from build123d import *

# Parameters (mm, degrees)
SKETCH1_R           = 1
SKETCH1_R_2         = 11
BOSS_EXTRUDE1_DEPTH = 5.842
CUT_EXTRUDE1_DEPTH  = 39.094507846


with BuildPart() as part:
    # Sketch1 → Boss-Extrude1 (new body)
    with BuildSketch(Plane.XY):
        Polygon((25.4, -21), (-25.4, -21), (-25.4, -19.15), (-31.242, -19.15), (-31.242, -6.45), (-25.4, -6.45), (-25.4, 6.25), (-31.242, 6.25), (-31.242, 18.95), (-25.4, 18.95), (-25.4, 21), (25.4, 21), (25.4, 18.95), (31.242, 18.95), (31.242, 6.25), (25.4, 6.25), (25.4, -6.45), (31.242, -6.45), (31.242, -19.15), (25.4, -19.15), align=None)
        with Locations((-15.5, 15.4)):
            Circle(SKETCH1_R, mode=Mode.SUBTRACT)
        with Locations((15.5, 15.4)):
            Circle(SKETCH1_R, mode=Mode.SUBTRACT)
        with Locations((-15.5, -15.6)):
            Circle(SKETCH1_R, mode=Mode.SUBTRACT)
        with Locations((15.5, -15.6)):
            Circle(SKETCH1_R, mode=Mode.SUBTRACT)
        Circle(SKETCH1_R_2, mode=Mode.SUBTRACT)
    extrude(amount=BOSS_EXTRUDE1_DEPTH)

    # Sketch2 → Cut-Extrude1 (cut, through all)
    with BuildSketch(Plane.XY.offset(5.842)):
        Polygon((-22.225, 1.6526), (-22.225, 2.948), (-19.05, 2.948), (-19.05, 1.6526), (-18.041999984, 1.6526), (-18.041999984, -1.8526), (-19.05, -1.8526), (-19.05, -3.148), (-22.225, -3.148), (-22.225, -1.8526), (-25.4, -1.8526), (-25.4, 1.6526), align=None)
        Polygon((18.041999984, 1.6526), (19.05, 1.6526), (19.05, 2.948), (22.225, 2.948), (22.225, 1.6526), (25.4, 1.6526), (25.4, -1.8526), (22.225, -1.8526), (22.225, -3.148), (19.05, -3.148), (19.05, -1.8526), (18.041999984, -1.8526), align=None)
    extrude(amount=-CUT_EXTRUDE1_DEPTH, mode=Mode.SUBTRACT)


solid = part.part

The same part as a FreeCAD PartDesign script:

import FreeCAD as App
import Part
import Sketcher
Q = App.Units.Quantity

doc = App.newDocument("Part")
body = doc.addObject("PartDesign::Body", "Body")

# Sketch on XY plane
sketch1 = body.newObject("Sketcher::SketchObject", "Sketch")
sketch1.AttachmentSupport = (doc.getObject("XY_Plane"), [""])
sketch1.MapMode = "FlatFace"
sketch1.addGeometry([
    Part.LineSegment(App.Vector(-25.4, -21, 0), App.Vector(25.4, -21, 0)),  # 0
    Part.LineSegment(App.Vector(25.4, -21, 0), App.Vector(25.4, -19.1, 0)),  # 1
    Part.LineSegment(App.Vector(25.4, -19.1, 0), App.Vector(31.2, -19.1, 0)),  # 2
    Part.LineSegment(App.Vector(31.2, -19.1, 0), App.Vector(31.2, -6.5, 0)),  # 3
    Part.LineSegment(App.Vector(31.2, -6.5, 0), App.Vector(25.4, -6.5, 0)),  # 4
    Part.LineSegment(App.Vector(25.4, -6.5, 0), App.Vector(25.4, 6.2, 0)),  # 5
    Part.LineSegment(App.Vector(25.4, 6.2, 0), App.Vector(31.2, 6.2, 0)),  # 6
    Part.LineSegment(App.Vector(31.2, 6.2, 0), App.Vector(31.2, 18.9, 0)),  # 7
    Part.LineSegment(App.Vector(31.2, 18.9, 0), App.Vector(25.4, 18.9, 0)),  # 8
    Part.LineSegment(App.Vector(25.4, 18.9, 0), App.Vector(25.4, 21, 0)),  # 9
    Part.LineSegment(App.Vector(25.4, 21, 0), App.Vector(-25.4, 21, 0)),  # 10
    Part.LineSegment(App.Vector(-25.4, 21, 0), App.Vector(-25.4, 18.9, 0)),  # 11
    Part.LineSegment(App.Vector(-25.4, 18.9, 0), App.Vector(-31.2, 18.9, 0)),  # 12
    Part.LineSegment(App.Vector(-31.2, 18.9, 0), App.Vector(-31.2, 6.2, 0)),  # 13
    Part.LineSegment(App.Vector(-31.2, 6.2, 0), App.Vector(-25.4, 6.2, 0)),  # 14
    Part.LineSegment(App.Vector(-25.4, 6.2, 0), App.Vector(-25.4, -6.5, 0)),  # 15
    Part.LineSegment(App.Vector(-25.4, -6.5, 0), App.Vector(-31.2, -6.5, 0)),  # 16
    Part.LineSegment(App.Vector(-31.2, -6.5, 0), App.Vector(-31.2, -19.1, 0)),  # 17
    Part.LineSegment(App.Vector(-31.2, -19.1, 0), App.Vector(-25.4, -19.1, 0)),  # 18
    Part.LineSegment(App.Vector(-25.4, -19.1, 0), App.Vector(-25.4, -21, 0)),  # 19
    Part.Circle(App.Vector(15.5, -15.6, 0), App.Vector(0, 0, 1), 1),  # 20
    Part.Circle(App.Vector(-15.5, -15.6, 0), App.Vector(0, 0, 1), 1),  # 21
    Part.Circle(App.Vector(15.5, 15.4, 0), App.Vector(0, 0, 1), 1),  # 22
    Part.Circle(App.Vector(0, 0, 0), App.Vector(0, 0, 1), 11),  # 23
    Part.Circle(App.Vector(-15.5, 15.4, 0), App.Vector(0, 0, 1), 1),  # 24
], False)
sketch1.addConstraint([
    Sketcher.Constraint("Coincident", 0, 2, 1, 1),
    Sketcher.Constraint("Coincident", 1, 2, 2, 1),
    Sketcher.Constraint("Coincident", 2, 2, 3, 1),
    Sketcher.Constraint("Coincident", 3, 2, 4, 1),
    Sketcher.Constraint("Coincident", 4, 2, 5, 1),
    Sketcher.Constraint("Coincident", 5, 2, 6, 1),
    Sketcher.Constraint("Coincident", 6, 2, 7, 1),
    Sketcher.Constraint("Coincident", 7, 2, 8, 1),
    Sketcher.Constraint("Coincident", 8, 2, 9, 1),
    Sketcher.Constraint("Coincident", 9, 2, 10, 1),
    Sketcher.Constraint("Coincident", 10, 2, 11, 1),
    Sketcher.Constraint("Coincident", 11, 2, 12, 1),
    Sketcher.Constraint("Coincident", 12, 2, 13, 1),
    Sketcher.Constraint("Coincident", 13, 2, 14, 1),
    Sketcher.Constraint("Coincident", 14, 2, 15, 1),
    Sketcher.Constraint("Coincident", 15, 2, 16, 1),
    Sketcher.Constraint("Coincident", 16, 2, 17, 1),
    Sketcher.Constraint("Coincident", 17, 2, 18, 1),
    Sketcher.Constraint("Coincident", 18, 2, 19, 1),
    Sketcher.Constraint("Coincident", 19, 2, 0, 1),
    Sketcher.Constraint("Horizontal", 0),
    Sketcher.Constraint("Vertical", 1),
    Sketcher.Constraint("Horizontal", 2),
    Sketcher.Constraint("Vertical", 3),
    Sketcher.Constraint("Horizontal", 4),
    Sketcher.Constraint("Vertical", 5),
    Sketcher.Constraint("Horizontal", 6),
    Sketcher.Constraint("Vertical", 7),
    Sketcher.Constraint("Horizontal", 8),
    Sketcher.Constraint("Vertical", 9),
    Sketcher.Constraint("Horizontal", 10),
    Sketcher.Constraint("Vertical", 11),
    Sketcher.Constraint("Horizontal", 12),
    Sketcher.Constraint("Vertical", 13),
    Sketcher.Constraint("Horizontal", 14),
    Sketcher.Constraint("Vertical", 15),
    Sketcher.Constraint("Horizontal", 16),
    Sketcher.Constraint("Vertical", 17),
    Sketcher.Constraint("Horizontal", 18),
    Sketcher.Constraint("Vertical", 19),
    Sketcher.Constraint("Coincident", 23, 3, -1, 1),
    Sketcher.Constraint("Equal", 20, 21),
    Sketcher.Constraint("Equal", 21, 22),
    Sketcher.Constraint("Equal", 22, 24),
    Sketcher.Constraint("Symmetric", 0, 2, 10, 2, -1, 1),
    Sketcher.Constraint("Symmetric", 20, 3, 21, 3, -2),
    Sketcher.Constraint("Symmetric", 22, 3, 24, 3, -2),
    Sketcher.Constraint("Symmetric", 8, 2, 11, 2, -2),
    Sketcher.Constraint("Symmetric", 6, 2, 13, 2, -2),
    Sketcher.Constraint("Symmetric", 4, 2, 15, 2, -2),
    Sketcher.Constraint("Symmetric", 2, 2, 17, 2, -2),
    Sketcher.Constraint("Vertical", 20, 3, 22, 3),
    Sketcher.Constraint("Vertical", 1, 2, 4, 2),
    Sketcher.Constraint("Vertical", 3, 2, 6, 2),
    Sketcher.Constraint("Vertical", 15, 2, 18, 2),
    Sketcher.Constraint("Equal", 3, 5),
    Sketcher.Constraint("Equal", 5, 7),
    Sketcher.Constraint("DistanceX", 0, 1, 0, 2, Q("2 in")),
    Sketcher.Constraint("DistanceY", 3, 1, 3, 2, Q("0.5 in")),
    Sketcher.Constraint("DistanceX", 2, 1, 2, 2, Q("0.23 in")),
    Sketcher.Constraint("Diameter", 20, Q("2 mm")),
    Sketcher.Constraint("Diameter", 23, Q("22 mm")),
    Sketcher.Constraint("DistanceY", 1, 1, 1, 2, Q("1.85 mm")),
    Sketcher.Constraint("DistanceY", 9, 1, 9, 2, Q("2.05 mm")),
    Sketcher.Constraint("DistanceX", -1, 1, 20, 3, Q("15.5 mm")),
    Sketcher.Constraint("DistanceY", 20, 3, -1, 1, Q("15.6 mm")),
    Sketcher.Constraint("DistanceY", -1, 1, 22, 3, Q("15.4 mm")),
])
pad1 = body.newObject("PartDesign::Pad", "Pad")
pad1.Profile = sketch1
pad1.Length = Q("0.23 in")

# Sketch on XY plane
sketch2 = body.newObject("Sketcher::SketchObject", "Sketch001")
sketch2.AttachmentSupport = (doc.getObject("XY_Plane"), [""])
sketch2.MapMode = "FlatFace"
sketch2.AttachmentOffset = App.Placement(App.Vector(0, 0, 0.23 * 25.4), App.Rotation())
sketch2.addGeometry([
    Part.LineSegment(App.Vector(-22.2, 2.9, 0), App.Vector(-22.2, 1.7, 0)),  # 0
    Part.LineSegment(App.Vector(-22.2, 1.7, 0), App.Vector(-25.4, 1.7, 0)),  # 1
    Part.LineSegment(App.Vector(-25.4, 1.7, 0), App.Vector(-25.4, -1.9, 0)),  # 2
    Part.LineSegment(App.Vector(-25.4, -1.9, 0), App.Vector(-22.2, -1.9, 0)),  # 3
    Part.LineSegment(App.Vector(-22.2, -1.9, 0), App.Vector(-22.2, -3.1, 0)),  # 4
    Part.LineSegment(App.Vector(-22.2, -3.1, 0), App.Vector(-19.1, -3.1, 0)),  # 5
    Part.LineSegment(App.Vector(-19.1, -3.1, 0), App.Vector(-19.1, -1.9, 0)),  # 6
    Part.LineSegment(App.Vector(-19.1, -1.9, 0), App.Vector(-18, -1.9, 0)),  # 7
    Part.LineSegment(App.Vector(-18, -1.9, 0), App.Vector(-18, 1.7, 0)),  # 8
    Part.LineSegment(App.Vector(-18, 1.7, 0), App.Vector(-19.1, 1.7, 0)),  # 9
    Part.LineSegment(App.Vector(-19.1, 1.7, 0), App.Vector(-19.1, 2.9, 0)),  # 10
    Part.LineSegment(App.Vector(-19.1, 2.9, 0), App.Vector(-22.2, 2.9, 0)),  # 11
    Part.LineSegment(App.Vector(19.1, 1.7, 0), App.Vector(18, 1.7, 0)),  # 12
    Part.LineSegment(App.Vector(18, 1.7, 0), App.Vector(18, -1.9, 0)),  # 13
    Part.LineSegment(App.Vector(18, -1.9, 0), App.Vector(19.1, -1.9, 0)),  # 14
    Part.LineSegment(App.Vector(19.1, -1.9, 0), App.Vector(19.1, -3.1, 0)),  # 15
    Part.LineSegment(App.Vector(19.1, -3.1, 0), App.Vector(22.2, -3.1, 0)),  # 16
    Part.LineSegment(App.Vector(22.2, -3.1, 0), App.Vector(22.2, -1.9, 0)),  # 17
    Part.LineSegment(App.Vector(22.2, -1.9, 0), App.Vector(25.4, -1.9, 0)),  # 18
    Part.LineSegment(App.Vector(25.4, -1.9, 0), App.Vector(25.4, 1.7, 0)),  # 19
    Part.LineSegment(App.Vector(25.4, 1.7, 0), App.Vector(22.2, 1.7, 0)),  # 20
    Part.LineSegment(App.Vector(22.2, 1.7, 0), App.Vector(22.2, 2.9, 0)),  # 21
    Part.LineSegment(App.Vector(22.2, 2.9, 0), App.Vector(19.1, 2.9, 0)),  # 22
    Part.LineSegment(App.Vector(19.1, 2.9, 0), App.Vector(19.1, 1.7, 0)),  # 23
], False)
sketch2.addConstraint([
    Sketcher.Constraint("Coincident", 0, 2, 1, 1),
    Sketcher.Constraint("Coincident", 1, 2, 2, 1),
    Sketcher.Constraint("Coincident", 2, 2, 3, 1),
    Sketcher.Constraint("Coincident", 3, 2, 4, 1),
    Sketcher.Constraint("Coincident", 4, 2, 5, 1),
    Sketcher.Constraint("Coincident", 5, 2, 6, 1),
    Sketcher.Constraint("Coincident", 6, 2, 7, 1),
    Sketcher.Constraint("Coincident", 7, 2, 8, 1),
    Sketcher.Constraint("Coincident", 8, 2, 9, 1),
    Sketcher.Constraint("Coincident", 9, 2, 10, 1),
    Sketcher.Constraint("Coincident", 10, 2, 11, 1),
    Sketcher.Constraint("Coincident", 11, 2, 0, 1),
    Sketcher.Constraint("Coincident", 12, 2, 13, 1),
    Sketcher.Constraint("Coincident", 13, 2, 14, 1),
    Sketcher.Constraint("Coincident", 14, 2, 15, 1),
    Sketcher.Constraint("Coincident", 15, 2, 16, 1),
    Sketcher.Constraint("Coincident", 16, 2, 17, 1),
    Sketcher.Constraint("Coincident", 17, 2, 18, 1),
    Sketcher.Constraint("Coincident", 18, 2, 19, 1),
    Sketcher.Constraint("Coincident", 19, 2, 20, 1),
    Sketcher.Constraint("Coincident", 20, 2, 21, 1),
    Sketcher.Constraint("Coincident", 21, 2, 22, 1),
    Sketcher.Constraint("Coincident", 22, 2, 23, 1),
    Sketcher.Constraint("Coincident", 23, 2, 12, 1),
    Sketcher.Constraint("Vertical", 0),
    Sketcher.Constraint("Horizontal", 1),
    Sketcher.Constraint("Vertical", 2),
    Sketcher.Constraint("Horizontal", 3),
    Sketcher.Constraint("Vertical", 4),
    Sketcher.Constraint("Horizontal", 5),
    Sketcher.Constraint("Vertical", 6),
    Sketcher.Constraint("Horizontal", 7),
    Sketcher.Constraint("Vertical", 8),
    Sketcher.Constraint("Horizontal", 9),
    Sketcher.Constraint("Vertical", 10),
    Sketcher.Constraint("Horizontal", 11),
    Sketcher.Constraint("Horizontal", 12),
    Sketcher.Constraint("Vertical", 13),
    Sketcher.Constraint("Horizontal", 14),
    Sketcher.Constraint("Vertical", 15),
    Sketcher.Constraint("Horizontal", 16),
    Sketcher.Constraint("Vertical", 17),
    Sketcher.Constraint("Horizontal", 18),
    Sketcher.Constraint("Vertical", 19),
    Sketcher.Constraint("Horizontal", 20),
    Sketcher.Constraint("Vertical", 21),
    Sketcher.Constraint("Horizontal", 22),
    Sketcher.Constraint("Vertical", 23),
    Sketcher.Constraint("Symmetric", 8, 2, 12, 2, -2),
    Sketcher.Constraint("Symmetric", 6, 2, 14, 2, -2),
    Sketcher.Constraint("Symmetric", 4, 2, 16, 2, -2),
    Sketcher.Constraint("Symmetric", 2, 2, 18, 2, -2),
    Sketcher.Constraint("Symmetric", 0, 2, 20, 2, -2),
    Sketcher.Constraint("Symmetric", 10, 2, 22, 2, -2),
    Sketcher.Constraint("Horizontal", 3, 2, 6, 2),
    Sketcher.Constraint("Horizontal", 1, 2, 8, 2),
    Sketcher.Constraint("Vertical", 0, 2, 3, 2),
    Sketcher.Constraint("Vertical", 6, 2, 9, 2),
    Sketcher.Constraint("Equal", 3, 5),
    Sketcher.Constraint("Equal", 0, 4),
    Sketcher.Constraint("DistanceX", 1, 2, -1, 1, Q("1 in")),
    Sketcher.Constraint("DistanceX", 6, 2, 14, 2, Q("1.5 in")),
    Sketcher.Constraint("DistanceY", 0, 2, 0, 1, Q("0.051 in")),
    Sketcher.Constraint("DistanceY", 2, 2, 2, 1, Q("0.138 in")),
    Sketcher.Constraint("DistanceX", 7, 1, 7, 2, Q("1.008 mm")),
    Sketcher.Constraint("DistanceY", -1, 1, 0, 2, Q("1.6526 mm")),
])
pocket1 = body.newObject("PartDesign::Pocket", "Pocket")
pocket1.Profile = sketch2
pocket1.Type = "ThroughAll"

doc.recompute()
